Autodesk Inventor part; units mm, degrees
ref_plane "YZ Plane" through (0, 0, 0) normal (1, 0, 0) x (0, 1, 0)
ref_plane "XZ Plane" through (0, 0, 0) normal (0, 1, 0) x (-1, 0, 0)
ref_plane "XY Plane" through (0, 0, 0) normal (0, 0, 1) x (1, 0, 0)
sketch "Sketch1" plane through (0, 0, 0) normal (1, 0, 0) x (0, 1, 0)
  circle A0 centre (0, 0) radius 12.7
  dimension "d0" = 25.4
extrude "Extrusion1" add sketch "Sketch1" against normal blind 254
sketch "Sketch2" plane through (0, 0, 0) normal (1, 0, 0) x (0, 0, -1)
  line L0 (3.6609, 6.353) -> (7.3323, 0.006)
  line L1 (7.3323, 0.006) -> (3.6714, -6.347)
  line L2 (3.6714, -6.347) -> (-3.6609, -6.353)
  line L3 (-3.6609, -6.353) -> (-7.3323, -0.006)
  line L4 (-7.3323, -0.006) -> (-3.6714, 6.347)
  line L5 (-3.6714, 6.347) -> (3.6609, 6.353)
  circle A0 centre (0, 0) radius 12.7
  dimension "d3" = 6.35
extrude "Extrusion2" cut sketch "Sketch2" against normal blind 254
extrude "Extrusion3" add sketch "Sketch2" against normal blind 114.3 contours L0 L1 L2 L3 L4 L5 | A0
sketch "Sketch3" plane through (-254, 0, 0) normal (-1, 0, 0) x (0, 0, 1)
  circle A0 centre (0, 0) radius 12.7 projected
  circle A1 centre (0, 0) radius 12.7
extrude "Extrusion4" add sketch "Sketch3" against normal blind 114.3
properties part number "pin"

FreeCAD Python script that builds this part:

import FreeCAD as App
import Part
import Sketcher

V = App.Vector
Q = App.Units.Quantity

doc = App.newDocument("Part")
params = doc.addObject("Spreadsheet::Sheet", "Params")
for row, (alias, value) in enumerate([
    ("sketch1_diameter", "1 in"),
    ("pad1_length", "10 in"),
    ("sketch2_diameter", "1 in"),
    ("pocket1_length", "10 in"),
    ("sketch3_diameter", "1 in"),
    ("pad2_length", "4.5 in"),
    ("sketch4_diameter", "1 in"),
    ("pad3_length", "4.5 in"),
], start=1):
    params.set(f"A{row}", alias)
    params.set(f"B{row}", "=" + value)
    params.setAlias(f"B{row}", alias)

body = doc.addObject("PartDesign::Body", "Body")

# Sketch on YZ plane
sketch1 = doc.addObject("Sketcher::SketchObject", "Sketch")
body.addObject(sketch1)
sketch1.AttachmentSupport = (doc.YZ_Plane, [""])
sketch1.MapMode = "FlatFace"
sketch1.addGeometry(Part.Circle(V(0, 0, 0), V(0, 0, 1), 13), False)
sketch1.addConstraint([
    Sketcher.Constraint("Coincident", 0, 3, -1, 1),
    Sketcher.Constraint("Diameter", 0, Q("1 in")),
])
sketch1.setExpression("Constraints[1]", "Params.sketch1_diameter")
pad1 = doc.addObject("PartDesign::Pad", "Pad")
body.addObject(pad1)
pad1.Profile = sketch1
pad1.setExpression("Length", "Params.pad1_length")
pad1.Reversed = True

# Sketch on YZ plane
sketch2 = doc.addObject("Sketcher::SketchObject", "Sketch001")
body.addObject(sketch2)
sketch2.AttachmentSupport = (doc.YZ_Plane, [""])
sketch2.MapMode = "FlatFace"
sketch2.addGeometry([
    Part.Circle(V(0, 0, 0), V(0, 0, 1), 13),  # 0
    Part.LineSegment(V(6, 4, 0), V(6, -4, 0)),  # 1
    Part.LineSegment(V(6, -4, 0), V(0, -7, 0)),  # 2
    Part.LineSegment(V(0, -7, 0), V(-6, -4, 0)),  # 3
    Part.LineSegment(V(-6, -4, 0), V(-6, 4, 0)),  # 4
    Part.LineSegment(V(-6, 4, 0), V(0, 7, 0)),  # 5
    Part.LineSegment(V(0, 7, 0), V(6, 4, 0)),  # 6
], False)
sketch2.addConstraint([
    Sketcher.Constraint("Coincident", 1, 2, 2, 1),
    Sketcher.Constraint("Coincident", 2, 2, 3, 1),
    Sketcher.Constraint("Coincident", 3, 2, 4, 1),
    Sketcher.Constraint("Coincident", 4, 2, 5, 1),
    Sketcher.Constraint("Coincident", 5, 2, 6, 1),
    Sketcher.Constraint("Coincident", 6, 2, 1, 1),
    Sketcher.Constraint("Coincident", 0, 3, -1, 1),
    Sketcher.Constraint("Symmetric", 1, 2, 4, 2, -1, 1),
    Sketcher.Constraint("Symmetric", 2, 2, 5, 2, -1, 1),
    Sketcher.Constraint("Symmetric", 3, 2, 6, 2, -1, 1),
    Sketcher.Constraint("Equal", 1, 2),
    Sketcher.Constraint("Equal", 2, 3),
    Sketcher.Constraint("Diameter", 0, Q("1 in")),
    Sketcher.Constraint("DistanceX", 3, 2, 1, 2, Q("0.5 in")),
    Sketcher.Constraint("DistanceY", 2, 2, 4, 2, Q("0.4328 in")),
    Sketcher.Constraint("Distance", 1, 7.3323),
    Sketcher.Constraint("DistanceX", -1, 1, 1, 2, 6.353),
])
sketch2.setExpression("Constraints[12]", "Params.sketch2_diameter")
pocket1 = doc.addObject("PartDesign::Pocket", "Pocket")
body.addObject(pocket1)
pocket1.Profile = sketch2
pocket1.setExpression("Length", "Params.pocket1_length")

# Sketch on YZ plane
sketch3 = doc.addObject("Sketcher::SketchObject", "Sketch002")
body.addObject(sketch3)
sketch3.AttachmentSupport = (doc.YZ_Plane, [""])
sketch3.MapMode = "FlatFace"
sketch3.addGeometry(Part.Circle(V(0, 0, 0), V(0, 0, 1), 13), False)
sketch3.addConstraint([
    Sketcher.Constraint("Coincident", 0, 3, -1, 1),
    Sketcher.Constraint("Diameter", 0, Q("1 in")),
])
sketch3.setExpression("Constraints[1]", "Params.sketch3_diameter")
pad2 = doc.addObject("PartDesign::Pad", "Pad001")
body.addObject(pad2)
pad2.Profile = sketch3
pad2.setExpression("Length", "Params.pad2_length")
pad2.Reversed = True

# Sketch on YZ plane
sketch4 = doc.addObject("Sketcher::SketchObject", "Sketch003")
body.addObject(sketch4)
sketch4.AttachmentSupport = (doc.YZ_Plane, [""])
sketch4.MapMode = "FlatFace"
sketch4.AttachmentOffset = App.Placement(V(0, 0, -10 * 25.4), App.Rotation())
sketch4.addGeometry(Part.Circle(V(0, 0, 0), V(0, 0, 1), 13), False)
sketch4.addConstraint([
    Sketcher.Constraint("Coincident", 0, 3, -1, 1),
    Sketcher.Constraint("Diameter", 0, Q("1 in")),
])
sketch4.setExpression("Constraints[1]", "Params.sketch4_diameter")
pad3 = doc.addObject("PartDesign::Pad", "Pad002")
body.addObject(pad3)
pad3.Profile = sketch4
pad3.setExpression("Length", "Params.pad3_length")

doc.recompute()
